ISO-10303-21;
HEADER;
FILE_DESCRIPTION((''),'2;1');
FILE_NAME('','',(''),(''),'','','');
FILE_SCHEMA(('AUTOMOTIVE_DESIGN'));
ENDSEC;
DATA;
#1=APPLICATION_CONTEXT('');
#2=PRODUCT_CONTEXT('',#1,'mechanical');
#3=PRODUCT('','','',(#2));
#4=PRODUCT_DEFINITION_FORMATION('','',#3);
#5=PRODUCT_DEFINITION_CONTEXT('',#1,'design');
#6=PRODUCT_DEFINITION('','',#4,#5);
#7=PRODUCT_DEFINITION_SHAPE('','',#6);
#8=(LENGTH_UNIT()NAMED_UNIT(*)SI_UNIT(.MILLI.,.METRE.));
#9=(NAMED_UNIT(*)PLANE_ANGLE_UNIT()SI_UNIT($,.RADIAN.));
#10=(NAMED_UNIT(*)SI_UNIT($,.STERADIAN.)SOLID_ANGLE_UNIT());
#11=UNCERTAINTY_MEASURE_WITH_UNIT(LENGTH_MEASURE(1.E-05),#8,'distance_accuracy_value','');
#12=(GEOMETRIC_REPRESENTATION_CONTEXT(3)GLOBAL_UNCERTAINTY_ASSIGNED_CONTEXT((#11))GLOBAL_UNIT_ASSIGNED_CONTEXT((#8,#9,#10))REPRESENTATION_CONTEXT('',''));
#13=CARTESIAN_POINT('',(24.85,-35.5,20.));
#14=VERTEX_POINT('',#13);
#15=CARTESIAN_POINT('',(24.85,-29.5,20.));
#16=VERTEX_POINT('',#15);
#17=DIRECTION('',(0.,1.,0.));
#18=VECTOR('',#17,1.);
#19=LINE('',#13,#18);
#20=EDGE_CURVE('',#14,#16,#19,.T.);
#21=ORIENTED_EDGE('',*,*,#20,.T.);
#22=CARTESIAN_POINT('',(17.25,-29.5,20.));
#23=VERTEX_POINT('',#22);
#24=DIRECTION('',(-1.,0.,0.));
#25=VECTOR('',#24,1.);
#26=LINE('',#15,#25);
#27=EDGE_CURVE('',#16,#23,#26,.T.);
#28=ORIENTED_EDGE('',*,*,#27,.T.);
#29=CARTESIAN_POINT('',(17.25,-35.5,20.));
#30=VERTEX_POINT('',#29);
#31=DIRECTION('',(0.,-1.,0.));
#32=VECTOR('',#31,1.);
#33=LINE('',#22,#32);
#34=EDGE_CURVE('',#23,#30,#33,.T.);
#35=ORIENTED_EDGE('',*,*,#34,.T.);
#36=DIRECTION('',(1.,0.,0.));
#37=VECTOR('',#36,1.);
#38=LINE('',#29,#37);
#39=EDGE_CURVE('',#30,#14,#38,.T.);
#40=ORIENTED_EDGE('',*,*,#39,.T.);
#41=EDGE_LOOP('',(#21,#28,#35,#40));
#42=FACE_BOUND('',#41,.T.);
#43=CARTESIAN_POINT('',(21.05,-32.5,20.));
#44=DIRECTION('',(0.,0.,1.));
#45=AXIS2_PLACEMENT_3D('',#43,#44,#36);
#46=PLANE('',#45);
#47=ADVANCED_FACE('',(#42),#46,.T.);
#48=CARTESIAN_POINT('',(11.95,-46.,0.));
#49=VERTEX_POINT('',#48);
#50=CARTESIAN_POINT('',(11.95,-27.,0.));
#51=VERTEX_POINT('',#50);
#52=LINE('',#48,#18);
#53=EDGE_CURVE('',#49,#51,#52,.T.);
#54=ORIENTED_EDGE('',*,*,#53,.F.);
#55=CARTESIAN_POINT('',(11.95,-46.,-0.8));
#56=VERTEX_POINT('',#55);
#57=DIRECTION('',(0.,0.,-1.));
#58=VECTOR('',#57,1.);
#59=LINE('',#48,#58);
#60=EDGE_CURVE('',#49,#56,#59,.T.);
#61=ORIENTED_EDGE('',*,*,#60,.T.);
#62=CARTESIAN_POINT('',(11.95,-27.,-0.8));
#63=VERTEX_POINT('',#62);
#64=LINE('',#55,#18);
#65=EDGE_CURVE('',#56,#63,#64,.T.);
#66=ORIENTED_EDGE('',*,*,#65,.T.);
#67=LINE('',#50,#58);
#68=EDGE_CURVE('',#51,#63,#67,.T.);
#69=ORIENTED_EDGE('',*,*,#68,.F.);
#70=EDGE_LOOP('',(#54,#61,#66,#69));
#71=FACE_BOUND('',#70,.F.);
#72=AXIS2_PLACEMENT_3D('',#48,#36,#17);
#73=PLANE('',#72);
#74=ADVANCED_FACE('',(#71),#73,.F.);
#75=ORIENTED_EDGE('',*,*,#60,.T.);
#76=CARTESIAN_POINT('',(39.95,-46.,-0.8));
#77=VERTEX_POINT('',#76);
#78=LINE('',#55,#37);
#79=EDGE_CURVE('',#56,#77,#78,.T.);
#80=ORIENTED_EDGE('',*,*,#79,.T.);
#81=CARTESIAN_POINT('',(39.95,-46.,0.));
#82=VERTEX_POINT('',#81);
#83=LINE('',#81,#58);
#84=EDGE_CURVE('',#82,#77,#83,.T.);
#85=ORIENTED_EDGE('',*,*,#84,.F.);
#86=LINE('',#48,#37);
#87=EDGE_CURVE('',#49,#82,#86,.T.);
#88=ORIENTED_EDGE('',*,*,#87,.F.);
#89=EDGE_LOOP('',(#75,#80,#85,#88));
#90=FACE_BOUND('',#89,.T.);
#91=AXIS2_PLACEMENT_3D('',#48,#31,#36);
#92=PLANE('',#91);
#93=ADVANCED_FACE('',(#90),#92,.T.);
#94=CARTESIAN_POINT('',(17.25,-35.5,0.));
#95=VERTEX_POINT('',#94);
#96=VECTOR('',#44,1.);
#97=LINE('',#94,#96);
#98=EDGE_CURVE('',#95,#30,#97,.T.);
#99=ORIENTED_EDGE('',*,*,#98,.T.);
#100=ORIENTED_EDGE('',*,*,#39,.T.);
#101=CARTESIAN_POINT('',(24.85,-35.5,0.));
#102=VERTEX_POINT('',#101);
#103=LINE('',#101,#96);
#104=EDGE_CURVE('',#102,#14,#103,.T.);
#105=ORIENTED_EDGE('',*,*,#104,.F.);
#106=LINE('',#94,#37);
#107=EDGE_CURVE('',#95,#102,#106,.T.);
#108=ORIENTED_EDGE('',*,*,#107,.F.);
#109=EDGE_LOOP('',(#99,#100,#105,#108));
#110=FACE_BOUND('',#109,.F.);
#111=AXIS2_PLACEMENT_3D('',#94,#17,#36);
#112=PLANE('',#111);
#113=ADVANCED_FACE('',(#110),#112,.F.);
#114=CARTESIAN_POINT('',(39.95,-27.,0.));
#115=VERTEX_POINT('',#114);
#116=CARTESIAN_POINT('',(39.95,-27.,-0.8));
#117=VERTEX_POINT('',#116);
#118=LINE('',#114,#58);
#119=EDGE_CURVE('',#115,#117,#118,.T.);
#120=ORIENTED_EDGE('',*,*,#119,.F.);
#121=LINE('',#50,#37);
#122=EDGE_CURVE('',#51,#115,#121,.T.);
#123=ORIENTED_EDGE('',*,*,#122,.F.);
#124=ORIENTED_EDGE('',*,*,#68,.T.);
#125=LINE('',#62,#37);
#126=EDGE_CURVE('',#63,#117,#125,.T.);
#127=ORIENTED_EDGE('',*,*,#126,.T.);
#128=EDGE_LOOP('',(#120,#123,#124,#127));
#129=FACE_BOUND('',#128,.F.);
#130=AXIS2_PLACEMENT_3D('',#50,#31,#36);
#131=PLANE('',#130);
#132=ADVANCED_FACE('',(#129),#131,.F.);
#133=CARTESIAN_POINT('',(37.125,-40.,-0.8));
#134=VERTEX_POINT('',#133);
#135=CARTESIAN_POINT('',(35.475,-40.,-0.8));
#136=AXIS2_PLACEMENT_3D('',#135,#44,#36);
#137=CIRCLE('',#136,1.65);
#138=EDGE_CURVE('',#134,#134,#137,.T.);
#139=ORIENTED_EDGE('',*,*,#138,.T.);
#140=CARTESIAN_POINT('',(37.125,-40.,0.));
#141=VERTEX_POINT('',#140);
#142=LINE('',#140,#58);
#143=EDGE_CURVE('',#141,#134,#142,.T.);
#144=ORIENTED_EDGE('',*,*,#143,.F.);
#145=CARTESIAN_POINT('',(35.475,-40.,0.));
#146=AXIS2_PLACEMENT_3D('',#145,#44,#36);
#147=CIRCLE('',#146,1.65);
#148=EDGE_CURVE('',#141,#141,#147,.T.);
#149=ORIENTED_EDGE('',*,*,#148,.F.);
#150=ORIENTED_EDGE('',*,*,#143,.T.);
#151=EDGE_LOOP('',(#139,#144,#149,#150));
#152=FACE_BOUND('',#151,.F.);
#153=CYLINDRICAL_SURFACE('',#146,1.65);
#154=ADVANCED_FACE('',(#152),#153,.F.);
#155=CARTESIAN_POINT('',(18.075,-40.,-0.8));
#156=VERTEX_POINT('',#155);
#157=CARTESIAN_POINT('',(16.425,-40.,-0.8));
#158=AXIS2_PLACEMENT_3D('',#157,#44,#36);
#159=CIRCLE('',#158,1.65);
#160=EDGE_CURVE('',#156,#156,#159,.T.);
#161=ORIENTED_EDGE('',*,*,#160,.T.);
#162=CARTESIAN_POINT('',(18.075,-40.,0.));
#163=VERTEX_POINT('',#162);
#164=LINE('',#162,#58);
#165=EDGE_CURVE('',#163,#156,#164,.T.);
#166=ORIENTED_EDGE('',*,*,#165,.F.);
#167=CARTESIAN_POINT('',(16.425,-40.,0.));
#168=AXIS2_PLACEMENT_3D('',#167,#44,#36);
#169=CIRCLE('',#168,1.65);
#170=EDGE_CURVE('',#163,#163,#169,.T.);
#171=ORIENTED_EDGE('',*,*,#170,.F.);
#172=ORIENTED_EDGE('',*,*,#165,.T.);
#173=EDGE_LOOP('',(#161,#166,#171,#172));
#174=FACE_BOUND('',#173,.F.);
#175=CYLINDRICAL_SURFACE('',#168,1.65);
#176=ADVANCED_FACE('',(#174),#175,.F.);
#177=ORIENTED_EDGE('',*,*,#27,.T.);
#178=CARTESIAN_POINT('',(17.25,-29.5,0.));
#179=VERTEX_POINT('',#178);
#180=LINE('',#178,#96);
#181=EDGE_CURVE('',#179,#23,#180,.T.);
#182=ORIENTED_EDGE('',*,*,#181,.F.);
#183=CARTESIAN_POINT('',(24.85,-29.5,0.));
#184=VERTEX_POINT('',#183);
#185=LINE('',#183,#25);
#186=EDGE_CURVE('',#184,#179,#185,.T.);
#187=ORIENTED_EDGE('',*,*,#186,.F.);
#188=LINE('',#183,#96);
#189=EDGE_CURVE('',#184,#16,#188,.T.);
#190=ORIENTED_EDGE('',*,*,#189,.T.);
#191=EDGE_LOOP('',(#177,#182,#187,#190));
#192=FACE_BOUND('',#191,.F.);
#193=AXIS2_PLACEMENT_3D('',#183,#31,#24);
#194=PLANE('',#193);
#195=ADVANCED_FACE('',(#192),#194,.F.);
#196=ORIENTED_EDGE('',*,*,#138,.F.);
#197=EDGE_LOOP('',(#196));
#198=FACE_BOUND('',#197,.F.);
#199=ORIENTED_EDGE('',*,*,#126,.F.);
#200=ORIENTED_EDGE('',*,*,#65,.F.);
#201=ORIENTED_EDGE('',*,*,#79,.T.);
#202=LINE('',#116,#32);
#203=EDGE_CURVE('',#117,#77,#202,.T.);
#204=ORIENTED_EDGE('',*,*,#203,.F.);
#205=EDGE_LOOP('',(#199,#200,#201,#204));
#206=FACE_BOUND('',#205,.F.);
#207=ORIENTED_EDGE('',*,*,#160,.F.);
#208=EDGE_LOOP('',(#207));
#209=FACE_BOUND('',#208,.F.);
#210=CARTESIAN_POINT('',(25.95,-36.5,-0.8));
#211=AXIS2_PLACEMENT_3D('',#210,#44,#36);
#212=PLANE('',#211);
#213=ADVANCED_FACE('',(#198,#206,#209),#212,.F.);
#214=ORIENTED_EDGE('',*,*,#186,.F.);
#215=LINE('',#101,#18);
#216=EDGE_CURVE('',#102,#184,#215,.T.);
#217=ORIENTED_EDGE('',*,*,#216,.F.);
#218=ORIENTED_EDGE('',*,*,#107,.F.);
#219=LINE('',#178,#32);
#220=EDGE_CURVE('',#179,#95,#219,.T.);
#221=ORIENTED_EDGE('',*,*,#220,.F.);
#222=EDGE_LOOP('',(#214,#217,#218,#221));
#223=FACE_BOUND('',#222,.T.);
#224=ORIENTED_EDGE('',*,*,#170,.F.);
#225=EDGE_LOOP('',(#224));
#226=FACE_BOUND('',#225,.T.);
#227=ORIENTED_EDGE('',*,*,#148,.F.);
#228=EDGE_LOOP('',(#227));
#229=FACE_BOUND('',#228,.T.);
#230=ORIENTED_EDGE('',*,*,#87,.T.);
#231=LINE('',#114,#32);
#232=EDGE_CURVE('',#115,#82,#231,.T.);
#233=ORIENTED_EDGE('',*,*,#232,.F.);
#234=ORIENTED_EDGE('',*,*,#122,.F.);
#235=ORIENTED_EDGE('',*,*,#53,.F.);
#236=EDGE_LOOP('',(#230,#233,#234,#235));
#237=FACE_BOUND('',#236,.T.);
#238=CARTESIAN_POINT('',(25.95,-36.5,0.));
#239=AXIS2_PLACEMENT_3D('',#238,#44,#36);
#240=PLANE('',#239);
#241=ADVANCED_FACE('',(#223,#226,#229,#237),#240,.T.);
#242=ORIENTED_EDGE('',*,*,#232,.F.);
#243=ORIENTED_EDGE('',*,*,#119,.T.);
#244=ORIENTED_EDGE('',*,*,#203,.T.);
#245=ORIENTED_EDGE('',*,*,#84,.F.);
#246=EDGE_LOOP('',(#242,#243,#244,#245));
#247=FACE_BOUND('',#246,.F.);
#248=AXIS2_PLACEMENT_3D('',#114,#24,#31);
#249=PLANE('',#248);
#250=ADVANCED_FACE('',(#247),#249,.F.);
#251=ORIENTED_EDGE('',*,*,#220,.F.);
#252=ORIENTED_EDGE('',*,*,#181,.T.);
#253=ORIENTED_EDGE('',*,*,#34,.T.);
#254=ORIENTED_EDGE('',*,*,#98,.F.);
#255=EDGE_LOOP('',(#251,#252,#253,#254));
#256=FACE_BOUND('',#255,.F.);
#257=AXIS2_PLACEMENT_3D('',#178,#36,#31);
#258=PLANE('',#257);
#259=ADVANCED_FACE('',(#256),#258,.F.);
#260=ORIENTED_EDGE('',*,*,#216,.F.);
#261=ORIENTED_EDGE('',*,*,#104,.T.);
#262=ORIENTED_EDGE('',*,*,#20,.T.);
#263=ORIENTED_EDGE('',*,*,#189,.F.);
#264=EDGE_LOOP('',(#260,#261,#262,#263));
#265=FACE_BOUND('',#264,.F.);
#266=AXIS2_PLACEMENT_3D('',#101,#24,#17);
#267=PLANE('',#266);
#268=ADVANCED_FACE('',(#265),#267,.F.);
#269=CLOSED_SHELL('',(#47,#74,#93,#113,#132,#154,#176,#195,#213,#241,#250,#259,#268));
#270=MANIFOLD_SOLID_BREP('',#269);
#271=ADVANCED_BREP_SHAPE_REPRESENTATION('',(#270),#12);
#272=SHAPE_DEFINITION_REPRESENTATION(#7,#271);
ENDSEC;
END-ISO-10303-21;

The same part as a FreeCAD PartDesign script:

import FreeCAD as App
import Part
import Sketcher
from FreeCAD import Vector
Q = App.Units.Quantity


def add_polygon(sketch, points):
    """Adds a closed chain of lines whose ends are joined by coincident constraints."""
    first, n = sketch.GeometryCount, len(points)
    for a, b in zip(points, points[1:] + points[:1]):
        sketch.addGeometry(Part.LineSegment(App.Vector(*a, 0), App.Vector(*b, 0)), False)
    for i in range(n):
        sketch.addConstraint(Sketcher.Constraint("Coincident", first + i, 2, first + (i + 1) % n, 1))

doc = App.newDocument("Part")
params = doc.addObject("Spreadsheet::Sheet", "Params")
for row, (alias, value) in enumerate([
    ("sketch1_diameter", "3.3 mm"),
    ("sketch1_width", "28 mm"),
    ("sketch1_height", "19 mm"),
    ("pad1_length", "0.8 mm"),
    ("sketch2_height", "6 mm"),
    ("sketch2_width", "7.6 mm"),
    ("pad2_length", "20 mm"),
], start=1):
    params.set(f"A{row}", alias)
    params.set(f"B{row}", "=" + value)
    params.setAlias(f"B{row}", alias)

body = doc.addObject("PartDesign::Body", "Body")

sketch1 = doc.addObject("Sketcher::SketchObject", "Sketch")
body.addObject(sketch1)
sketch1.AttachmentSupport = (doc.XY_Plane, [""])
sketch1.MapMode = "FlatFace"
add_polygon(sketch1, [(11.95, -27), (11.95, -46), (39.95, -46), (39.95, -27)])
sketch1.addGeometry(Part.Circle(Vector(16.425, -40, 0), Vector(0, 0, 1), 1.65), False)
sketch1.addGeometry(Part.Circle(Vector(35.475, -40, 0), Vector(0, 0, 1), 1.65), False)
sketch1.addConstraint([
    Sketcher.Constraint("Vertical", 0),
    Sketcher.Constraint("Horizontal", 1),
    Sketcher.Constraint("Vertical", 2),
    Sketcher.Constraint("Horizontal", 3),
    Sketcher.Constraint("Equal", 4, 5),
    Sketcher.Constraint("Horizontal", 4, 3, 5, 3),
    Sketcher.Constraint("Diameter", 4, Q("3.3 mm")),
    Sketcher.Constraint("DistanceX", 1, 1, 1, 2, Q("28 mm")),
    Sketcher.Constraint("DistanceY", 0, 2, 0, 1, Q("19 mm")),
    Sketcher.Constraint("DistanceY", 4, 3, -1, 1, Q("40 mm")),
    Sketcher.Constraint("DistanceY", 0, 2, -1, 1, Q("46 mm")),
    Sketcher.Constraint("DistanceX", -1, 1, 0, 2, Q("11.95 mm")),
    Sketcher.Constraint("DistanceX", 4, 3, 5, 3, Q("19.05 mm")),
    Sketcher.Constraint("DistanceX", -1, 1, 4, 3, Q("16.425 mm")),
])
sketch1.setExpression("Constraints[10]", "Params.sketch1_diameter")
sketch1.setExpression("Constraints[11]", "Params.sketch1_width")
sketch1.setExpression("Constraints[12]", "Params.sketch1_height")
pad1 = doc.addObject("PartDesign::Pad", "Pad")
body.addObject(pad1)
pad1.Profile = sketch1
pad1.setExpression("Length", "Params.pad1_length")
pad1.Reversed = True

sketch2 = doc.addObject("Sketcher::SketchObject", "Sketch001")
body.addObject(sketch2)
sketch2.AttachmentSupport = (doc.XY_Plane, [""])
sketch2.MapMode = "FlatFace"
add_polygon(sketch2, [(17.25, -29.5), (17.25, -35.5), (24.85, -35.5), (24.85, -29.5)])
sketch2.addConstraint([
    Sketcher.Constraint("Vertical", 0),
    Sketcher.Constraint("Horizontal", 1),
    Sketcher.Constraint("Vertical", 2),
    Sketcher.Constraint("Horizontal", 3),
    Sketcher.Constraint("DistanceY", 0, 2, 0, 1, Q("6 mm")),
    Sketcher.Constraint("DistanceX", 1, 1, 1, 2, Q("7.6 mm")),
    Sketcher.Constraint("DistanceY", 0, 2, -1, 1, Q("35.5 mm")),
    Sketcher.Constraint("DistanceX", -1, 1, 0, 2, Q("17.25 mm")),
])
sketch2.setExpression("Constraints[8]", "Params.sketch2_height")
sketch2.setExpression("Constraints[9]", "Params.sketch2_width")
pad2 = doc.addObject("PartDesign::Pad", "Pad001")
body.addObject(pad2)
pad2.Profile = sketch2
pad2.setExpression("Length", "Params.pad2_length")

doc.recompute()
